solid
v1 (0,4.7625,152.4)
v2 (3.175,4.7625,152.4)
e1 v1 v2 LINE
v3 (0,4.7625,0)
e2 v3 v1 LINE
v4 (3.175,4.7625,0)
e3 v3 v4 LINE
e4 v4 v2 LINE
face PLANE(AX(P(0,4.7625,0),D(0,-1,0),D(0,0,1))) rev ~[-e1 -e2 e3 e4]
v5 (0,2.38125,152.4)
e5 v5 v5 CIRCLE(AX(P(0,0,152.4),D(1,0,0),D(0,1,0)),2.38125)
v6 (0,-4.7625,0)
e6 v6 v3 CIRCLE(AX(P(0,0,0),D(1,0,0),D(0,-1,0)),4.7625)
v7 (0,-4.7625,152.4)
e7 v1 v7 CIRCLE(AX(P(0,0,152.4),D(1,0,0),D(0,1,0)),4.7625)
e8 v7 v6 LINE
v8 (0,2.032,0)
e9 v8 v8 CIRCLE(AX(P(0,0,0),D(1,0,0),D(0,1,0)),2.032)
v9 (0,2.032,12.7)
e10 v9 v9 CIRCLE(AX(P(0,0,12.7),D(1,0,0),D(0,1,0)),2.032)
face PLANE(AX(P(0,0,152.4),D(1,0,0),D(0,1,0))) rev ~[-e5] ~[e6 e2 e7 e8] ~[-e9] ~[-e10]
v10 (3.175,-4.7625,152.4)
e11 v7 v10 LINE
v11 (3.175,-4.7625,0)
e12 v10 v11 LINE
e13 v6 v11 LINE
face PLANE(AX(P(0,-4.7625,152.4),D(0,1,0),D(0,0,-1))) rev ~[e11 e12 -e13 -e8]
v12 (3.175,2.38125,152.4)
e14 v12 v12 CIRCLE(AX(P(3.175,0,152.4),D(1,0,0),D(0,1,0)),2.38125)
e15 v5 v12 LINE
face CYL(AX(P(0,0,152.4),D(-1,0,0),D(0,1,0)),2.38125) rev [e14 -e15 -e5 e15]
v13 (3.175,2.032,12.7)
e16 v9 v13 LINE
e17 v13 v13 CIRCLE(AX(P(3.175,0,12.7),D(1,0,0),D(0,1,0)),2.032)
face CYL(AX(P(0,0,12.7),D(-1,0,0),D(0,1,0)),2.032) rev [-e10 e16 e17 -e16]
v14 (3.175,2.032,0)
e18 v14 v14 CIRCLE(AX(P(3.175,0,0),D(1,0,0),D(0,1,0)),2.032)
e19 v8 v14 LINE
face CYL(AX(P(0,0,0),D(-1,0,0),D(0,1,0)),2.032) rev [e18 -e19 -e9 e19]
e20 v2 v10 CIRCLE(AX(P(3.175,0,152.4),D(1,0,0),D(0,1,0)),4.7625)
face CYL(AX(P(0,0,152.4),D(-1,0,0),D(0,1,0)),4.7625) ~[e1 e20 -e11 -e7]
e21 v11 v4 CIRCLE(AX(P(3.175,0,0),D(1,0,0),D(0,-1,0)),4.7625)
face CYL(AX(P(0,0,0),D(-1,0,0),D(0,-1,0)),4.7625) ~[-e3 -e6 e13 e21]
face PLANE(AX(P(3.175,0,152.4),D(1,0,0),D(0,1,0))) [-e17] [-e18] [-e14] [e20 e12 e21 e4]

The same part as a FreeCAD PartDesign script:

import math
import FreeCAD as App
import Part
import Sketcher
Q = App.Units.Quantity

doc = App.newDocument("Part")
body = doc.addObject("PartDesign::Body", "Body")

sketch1 = body.newObject("Sketcher::SketchObject", "Sketch")
sketch1.AttachmentSupport = (doc.getObject("YZ_Plane"), [""])
sketch1.MapMode = "FlatFace"
sketch1.addGeometry([
    Part.ArcOfCircle(Part.Circle(App.Vector(0, 152.4, 0), App.Vector(0, 0, 1), 4.8), math.radians(0), math.radians(180)),
    Part.LineSegment(App.Vector(-4.8, 152.4, 0), App.Vector(-4.8, 0, 0)),
    Part.ArcOfCircle(Part.Circle(App.Vector(0, 0, 0), App.Vector(0, 0, 1), 4.8), math.radians(180), math.radians(360)),
    Part.LineSegment(App.Vector(4.8, 0, 0), App.Vector(4.8, 152.4, 0)),
    Part.Circle(App.Vector(0, 0, 0), App.Vector(0, 0, 1), 2),
    Part.Circle(App.Vector(0, 12.7, 0), App.Vector(0, 0, 1), 2),
    Part.Circle(App.Vector(0, 152.4, 0), App.Vector(0, 0, 1), 2.4),
], False)
sketch1.addConstraint([
    Sketcher.Constraint("Tangent", 0, 2, 1, 1),
    Sketcher.Constraint("Tangent", 1, 2, 2, 1),
    Sketcher.Constraint("Tangent", 2, 2, 3, 1),
    Sketcher.Constraint("Tangent", 3, 2, 0, 1),
    Sketcher.Constraint("Vertical", 1),
    Sketcher.Constraint("Vertical", 3),
    Sketcher.Constraint("Coincident", 2, 3, -1, 1),
    Sketcher.Constraint("Coincident", 4, 3, -1, 1),
    Sketcher.Constraint("Coincident", 6, 3, 0, 3),
    Sketcher.Constraint("Equal", 4, 5),
    Sketcher.Constraint("PointOnObject", 5, 3, -2),
    Sketcher.Constraint("Diameter", 4, Q("0.16 in")),
    Sketcher.Constraint("DistanceY", 1, 2, 1, 1, Q("6 in")),
    Sketcher.Constraint("Diameter", 6, Q("0.1875 in")),
    Sketcher.Constraint("Radius", 0, Q("0.1875 in")),
    Sketcher.Constraint("DistanceY", -1, 1, 5, 3, Q("0.5 in")),
])
pad1 = body.newObject("PartDesign::Pad", "Pad")
pad1.Profile = sketch1
pad1.Length = Q("0.125 in")

doc.recompute()
